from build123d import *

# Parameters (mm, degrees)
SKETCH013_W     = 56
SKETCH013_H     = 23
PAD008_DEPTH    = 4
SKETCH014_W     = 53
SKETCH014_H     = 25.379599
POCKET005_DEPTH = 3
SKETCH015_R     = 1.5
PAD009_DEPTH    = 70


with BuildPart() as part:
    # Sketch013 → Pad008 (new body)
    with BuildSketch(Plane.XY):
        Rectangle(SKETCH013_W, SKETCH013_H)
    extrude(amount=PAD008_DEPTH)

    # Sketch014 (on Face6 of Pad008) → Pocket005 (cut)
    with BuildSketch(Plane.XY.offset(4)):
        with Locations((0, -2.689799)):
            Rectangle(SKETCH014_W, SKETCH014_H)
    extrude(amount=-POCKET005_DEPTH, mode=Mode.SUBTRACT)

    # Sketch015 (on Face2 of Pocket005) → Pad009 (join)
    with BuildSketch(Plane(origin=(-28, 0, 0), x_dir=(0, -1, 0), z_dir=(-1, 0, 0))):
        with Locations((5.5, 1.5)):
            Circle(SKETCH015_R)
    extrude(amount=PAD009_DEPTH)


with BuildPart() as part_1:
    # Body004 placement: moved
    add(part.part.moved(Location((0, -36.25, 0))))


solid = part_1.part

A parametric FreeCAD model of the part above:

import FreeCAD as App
import Part
import Sketcher

V = App.Vector
Q = App.Units.Quantity


def add_polygon(sketch, points):
    """Adds a closed chain of lines whose ends are joined by coincident constraints."""
    first, n = sketch.GeometryCount, len(points)
    for a, b in zip(points, points[1:] + points[:1]):
        sketch.addGeometry(Part.LineSegment(App.Vector(*a, 0), App.Vector(*b, 0)), False)
    for i in range(n):
        sketch.addConstraint(Sketcher.Constraint("Coincident", first + i, 2, first + (i + 1) % n, 1))

doc = App.newDocument("Part")
body = doc.addObject("PartDesign::Body", "Body")

sketch1 = body.newObject("Sketcher::SketchObject", "Sketch")
sketch1.AttachmentSupport = (doc.getObject("XY_Plane"), [""])
sketch1.MapMode = "FlatFace"
add_polygon(sketch1, [(-28, 11.5), (-28, -11.5), (28, -11.5), (28, 11.5)])
sketch1.addConstraint(Sketcher.Constraint("Vertical", 0))
sketch1.addConstraint(Sketcher.Constraint("Horizontal", 1))
sketch1.addConstraint(Sketcher.Constraint("Vertical", 2))
sketch1.addConstraint(Sketcher.Constraint("Horizontal", 3))
sketch1.addConstraint(Sketcher.Constraint("Symmetric", 0, 2, 2, 2, -1, 1))
sketch1.addConstraint(Sketcher.Constraint("DistanceX", 1, 1, 1, 2, Q("56 mm")))
sketch1.addConstraint(Sketcher.Constraint("DistanceY", 0, 2, 0, 1, Q("23 mm")))
pad1 = body.newObject("PartDesign::Pad", "Pad")
pad1.Profile = sketch1
pad1.Length = 4

sketch2 = body.newObject("Sketcher::SketchObject", "Sketch001")
sketch2.AttachmentSupport = (doc.getObject("XY_Plane"), [""])
sketch2.MapMode = "FlatFace"
sketch2.AttachmentOffset = App.Placement(V(0, 0, 4), App.Rotation())
add_polygon(sketch2, [(-26.5, 10.000001), (-26.5, -15.379599), (26.5, -15.379599), (26.5, 10.000001)])
sketch2.addConstraint(Sketcher.Constraint("Vertical", 0))
sketch2.addConstraint(Sketcher.Constraint("Horizontal", 1))
sketch2.addConstraint(Sketcher.Constraint("Vertical", 2))
sketch2.addConstraint(Sketcher.Constraint("Horizontal", 3))
sketch2.addConstraint(Sketcher.Constraint("DistanceX", 1, 1, 1, 2, Q("53 mm")))
sketch2.addConstraint(Sketcher.Constraint("DistanceY", -1, 1, 2, 2, Q("10.000001 mm")))
sketch2.addConstraint(Sketcher.Constraint("DistanceX", 0, 2, -1, 1, Q("26.5 mm")))
sketch2.addConstraint(Sketcher.Constraint("DistanceY", 0, 2, 0, 1, Q("25.379599 mm")))
pocket1 = body.newObject("PartDesign::Pocket", "Pocket")
pocket1.Profile = sketch2
pocket1.Length = 3

sketch3 = body.newObject("Sketcher::SketchObject", "Sketch002")
sketch3.AttachmentSupport = (doc.getObject("YZ_Plane"), [""])
sketch3.MapMode = "FlatFace"
sketch3.AttachmentOffset = App.Placement(V(0, 0, -28), App.Rotation())
sketch3.addGeometry(Part.Circle(V(-5.5, 1.5, 0), V(0, 0, 1), 1.5), False)
sketch3.addConstraint(Sketcher.Constraint("Diameter", 0, Q("3 mm")))
sketch3.addConstraint(Sketcher.Constraint("DistanceX", 0, 3, -1, 1, Q("5.5 mm")))
sketch3.addConstraint(Sketcher.Constraint("DistanceY", -1, 1, 0, 3, Q("1.5 mm")))
pad2 = body.newObject("PartDesign::Pad", "Pad001")
pad2.Profile = sketch3
pad2.Length = 70
pad2.Reversed = True
body2 = doc.addObject("PartDesign::Body", "Body001")
doc.recompute()

body.Placement = App.Placement(V(0, -36.25, 0), App.Rotation(V(0, 0, 1), 0))
boolean = body2.newObject("PartDesign::Boolean", "Boolean")
boolean.Type = "Fuse"
boolean.addObjects([body])

doc.recompute()
